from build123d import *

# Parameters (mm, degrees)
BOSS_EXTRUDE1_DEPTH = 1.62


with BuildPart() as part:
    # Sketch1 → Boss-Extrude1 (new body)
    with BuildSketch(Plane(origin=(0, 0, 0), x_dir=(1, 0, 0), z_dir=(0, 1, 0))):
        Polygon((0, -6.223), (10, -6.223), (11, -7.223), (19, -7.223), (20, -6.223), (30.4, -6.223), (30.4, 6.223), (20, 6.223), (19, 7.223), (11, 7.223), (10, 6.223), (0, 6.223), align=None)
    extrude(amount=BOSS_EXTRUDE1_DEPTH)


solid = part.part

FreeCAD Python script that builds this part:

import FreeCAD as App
import Part
import Sketcher
Q = App.Units.Quantity

doc = App.newDocument("Part")
body = doc.addObject("PartDesign::Body", "Body")

# Sketch on XZ plane
sketch1 = body.newObject("Sketcher::SketchObject", "Sketch")
sketch1.AttachmentSupport = (doc.getObject("XZ_Plane"), [""])
sketch1.MapMode = "FlatFace"
sketch1.addGeometry(Part.LineSegment(App.Vector(0, 6.223, 0), App.Vector(10, 6.223, 0)), False)
sketch1.addGeometry(Part.LineSegment(App.Vector(10, 6.223, 0), App.Vector(11, 7.223, 0)), False)
sketch1.addGeometry(Part.LineSegment(App.Vector(11, 7.223, 0), App.Vector(19, 7.223, 0)), False)
sketch1.addGeometry(Part.LineSegment(App.Vector(19, 7.223, 0), App.Vector(20, 6.223, 0)), False)
sketch1.addGeometry(Part.LineSegment(App.Vector(20, 6.223, 0), App.Vector(30.4, 6.223, 0)), False)
sketch1.addGeometry(Part.LineSegment(App.Vector(30.4, 6.223, 0), App.Vector(30.4, -6.223, 0)), False)
sketch1.addGeometry(Part.LineSegment(App.Vector(30.4, -6.223, 0), App.Vector(20, -6.223, 0)), False)
sketch1.addGeometry(Part.LineSegment(App.Vector(20, -6.223, 0), App.Vector(19, -7.223, 0)), False)
sketch1.addGeometry(Part.LineSegment(App.Vector(19, -7.223, 0), App.Vector(11, -7.223, 0)), False)
sketch1.addGeometry(Part.LineSegment(App.Vector(11, -7.223, 0), App.Vector(10, -6.223, 0)), False)
sketch1.addGeometry(Part.LineSegment(App.Vector(10, -6.223, 0), App.Vector(0, -6.223, 0)), False)
sketch1.addGeometry(Part.LineSegment(App.Vector(0, -6.223, 0), App.Vector(0, 6.223, 0)), False)
sketch1.addConstraint(Sketcher.Constraint("Coincident", 0, 2, 1, 1))
sketch1.addConstraint(Sketcher.Constraint("Coincident", 1, 2, 2, 1))
sketch1.addConstraint(Sketcher.Constraint("Coincident", 2, 2, 3, 1))
sketch1.addConstraint(Sketcher.Constraint("Coincident", 3, 2, 4, 1))
sketch1.addConstraint(Sketcher.Constraint("Coincident", 4, 2, 5, 1))
sketch1.addConstraint(Sketcher.Constraint("Coincident", 5, 2, 6, 1))
sketch1.addConstraint(Sketcher.Constraint("Coincident", 6, 2, 7, 1))
sketch1.addConstraint(Sketcher.Constraint("Coincident", 7, 2, 8, 1))
sketch1.addConstraint(Sketcher.Constraint("Coincident", 8, 2, 9, 1))
sketch1.addConstraint(Sketcher.Constraint("Coincident", 9, 2, 10, 1))
sketch1.addConstraint(Sketcher.Constraint("Coincident", 10, 2, 11, 1))
sketch1.addConstraint(Sketcher.Constraint("Coincident", 11, 2, 0, 1))
sketch1.addConstraint(Sketcher.Constraint("Horizontal", 0))
sketch1.addConstraint(Sketcher.Constraint("Horizontal", 2))
sketch1.addConstraint(Sketcher.Constraint("Horizontal", 4))
sketch1.addConstraint(Sketcher.Constraint("Vertical", 5))
sketch1.addConstraint(Sketcher.Constraint("Horizontal", 6))
sketch1.addConstraint(Sketcher.Constraint("Horizontal", 8))
sketch1.addConstraint(Sketcher.Constraint("Horizontal", 10))
sketch1.addConstraint(Sketcher.Constraint("Vertical", 11))
sketch1.addConstraint(Sketcher.Constraint("Symmetric", 10, 2, 11, 2, -1, 1))
sketch1.addConstraint(Sketcher.Constraint("Symmetric", 3, 2, 6, 2, -1))
sketch1.addConstraint(Sketcher.Constraint("Symmetric", 2, 2, 7, 2, -1))
sketch1.addConstraint(Sketcher.Constraint("Perpendicular", 1, 3))
sketch1.addConstraint(Sketcher.Constraint("Perpendicular", 3, 7))
sketch1.addConstraint(Sketcher.Constraint("Perpendicular", 7, 9))
sketch1.addConstraint(Sketcher.Constraint("Horizontal", 0, 2, 3, 2))
sketch1.addConstraint(Sketcher.Constraint("Vertical", 1, 2, 8, 2))
sketch1.addConstraint(Sketcher.Constraint("DistanceX", 0, 1, 0, 2, Q("10 mm")))
sketch1.addConstraint(Sketcher.Constraint("DistanceX", 2, 1, 2, 2, Q("8 mm")))
sketch1.addConstraint(Sketcher.Constraint("DistanceX", 4, 1, 4, 2, Q("10.4 mm")))
sketch1.addConstraint(Sketcher.Constraint("DistanceX", -1, 1, 1, 2, Q("11 mm")))
sketch1.addConstraint(Sketcher.Constraint("DistanceY", 5, 2, 5, 1, Q("12.446 mm")))
pad1 = body.newObject("PartDesign::Pad", "Pad")
pad1.Profile = sketch1
pad1.Length = 1.62
pad1.Reversed = True

doc.recompute()
